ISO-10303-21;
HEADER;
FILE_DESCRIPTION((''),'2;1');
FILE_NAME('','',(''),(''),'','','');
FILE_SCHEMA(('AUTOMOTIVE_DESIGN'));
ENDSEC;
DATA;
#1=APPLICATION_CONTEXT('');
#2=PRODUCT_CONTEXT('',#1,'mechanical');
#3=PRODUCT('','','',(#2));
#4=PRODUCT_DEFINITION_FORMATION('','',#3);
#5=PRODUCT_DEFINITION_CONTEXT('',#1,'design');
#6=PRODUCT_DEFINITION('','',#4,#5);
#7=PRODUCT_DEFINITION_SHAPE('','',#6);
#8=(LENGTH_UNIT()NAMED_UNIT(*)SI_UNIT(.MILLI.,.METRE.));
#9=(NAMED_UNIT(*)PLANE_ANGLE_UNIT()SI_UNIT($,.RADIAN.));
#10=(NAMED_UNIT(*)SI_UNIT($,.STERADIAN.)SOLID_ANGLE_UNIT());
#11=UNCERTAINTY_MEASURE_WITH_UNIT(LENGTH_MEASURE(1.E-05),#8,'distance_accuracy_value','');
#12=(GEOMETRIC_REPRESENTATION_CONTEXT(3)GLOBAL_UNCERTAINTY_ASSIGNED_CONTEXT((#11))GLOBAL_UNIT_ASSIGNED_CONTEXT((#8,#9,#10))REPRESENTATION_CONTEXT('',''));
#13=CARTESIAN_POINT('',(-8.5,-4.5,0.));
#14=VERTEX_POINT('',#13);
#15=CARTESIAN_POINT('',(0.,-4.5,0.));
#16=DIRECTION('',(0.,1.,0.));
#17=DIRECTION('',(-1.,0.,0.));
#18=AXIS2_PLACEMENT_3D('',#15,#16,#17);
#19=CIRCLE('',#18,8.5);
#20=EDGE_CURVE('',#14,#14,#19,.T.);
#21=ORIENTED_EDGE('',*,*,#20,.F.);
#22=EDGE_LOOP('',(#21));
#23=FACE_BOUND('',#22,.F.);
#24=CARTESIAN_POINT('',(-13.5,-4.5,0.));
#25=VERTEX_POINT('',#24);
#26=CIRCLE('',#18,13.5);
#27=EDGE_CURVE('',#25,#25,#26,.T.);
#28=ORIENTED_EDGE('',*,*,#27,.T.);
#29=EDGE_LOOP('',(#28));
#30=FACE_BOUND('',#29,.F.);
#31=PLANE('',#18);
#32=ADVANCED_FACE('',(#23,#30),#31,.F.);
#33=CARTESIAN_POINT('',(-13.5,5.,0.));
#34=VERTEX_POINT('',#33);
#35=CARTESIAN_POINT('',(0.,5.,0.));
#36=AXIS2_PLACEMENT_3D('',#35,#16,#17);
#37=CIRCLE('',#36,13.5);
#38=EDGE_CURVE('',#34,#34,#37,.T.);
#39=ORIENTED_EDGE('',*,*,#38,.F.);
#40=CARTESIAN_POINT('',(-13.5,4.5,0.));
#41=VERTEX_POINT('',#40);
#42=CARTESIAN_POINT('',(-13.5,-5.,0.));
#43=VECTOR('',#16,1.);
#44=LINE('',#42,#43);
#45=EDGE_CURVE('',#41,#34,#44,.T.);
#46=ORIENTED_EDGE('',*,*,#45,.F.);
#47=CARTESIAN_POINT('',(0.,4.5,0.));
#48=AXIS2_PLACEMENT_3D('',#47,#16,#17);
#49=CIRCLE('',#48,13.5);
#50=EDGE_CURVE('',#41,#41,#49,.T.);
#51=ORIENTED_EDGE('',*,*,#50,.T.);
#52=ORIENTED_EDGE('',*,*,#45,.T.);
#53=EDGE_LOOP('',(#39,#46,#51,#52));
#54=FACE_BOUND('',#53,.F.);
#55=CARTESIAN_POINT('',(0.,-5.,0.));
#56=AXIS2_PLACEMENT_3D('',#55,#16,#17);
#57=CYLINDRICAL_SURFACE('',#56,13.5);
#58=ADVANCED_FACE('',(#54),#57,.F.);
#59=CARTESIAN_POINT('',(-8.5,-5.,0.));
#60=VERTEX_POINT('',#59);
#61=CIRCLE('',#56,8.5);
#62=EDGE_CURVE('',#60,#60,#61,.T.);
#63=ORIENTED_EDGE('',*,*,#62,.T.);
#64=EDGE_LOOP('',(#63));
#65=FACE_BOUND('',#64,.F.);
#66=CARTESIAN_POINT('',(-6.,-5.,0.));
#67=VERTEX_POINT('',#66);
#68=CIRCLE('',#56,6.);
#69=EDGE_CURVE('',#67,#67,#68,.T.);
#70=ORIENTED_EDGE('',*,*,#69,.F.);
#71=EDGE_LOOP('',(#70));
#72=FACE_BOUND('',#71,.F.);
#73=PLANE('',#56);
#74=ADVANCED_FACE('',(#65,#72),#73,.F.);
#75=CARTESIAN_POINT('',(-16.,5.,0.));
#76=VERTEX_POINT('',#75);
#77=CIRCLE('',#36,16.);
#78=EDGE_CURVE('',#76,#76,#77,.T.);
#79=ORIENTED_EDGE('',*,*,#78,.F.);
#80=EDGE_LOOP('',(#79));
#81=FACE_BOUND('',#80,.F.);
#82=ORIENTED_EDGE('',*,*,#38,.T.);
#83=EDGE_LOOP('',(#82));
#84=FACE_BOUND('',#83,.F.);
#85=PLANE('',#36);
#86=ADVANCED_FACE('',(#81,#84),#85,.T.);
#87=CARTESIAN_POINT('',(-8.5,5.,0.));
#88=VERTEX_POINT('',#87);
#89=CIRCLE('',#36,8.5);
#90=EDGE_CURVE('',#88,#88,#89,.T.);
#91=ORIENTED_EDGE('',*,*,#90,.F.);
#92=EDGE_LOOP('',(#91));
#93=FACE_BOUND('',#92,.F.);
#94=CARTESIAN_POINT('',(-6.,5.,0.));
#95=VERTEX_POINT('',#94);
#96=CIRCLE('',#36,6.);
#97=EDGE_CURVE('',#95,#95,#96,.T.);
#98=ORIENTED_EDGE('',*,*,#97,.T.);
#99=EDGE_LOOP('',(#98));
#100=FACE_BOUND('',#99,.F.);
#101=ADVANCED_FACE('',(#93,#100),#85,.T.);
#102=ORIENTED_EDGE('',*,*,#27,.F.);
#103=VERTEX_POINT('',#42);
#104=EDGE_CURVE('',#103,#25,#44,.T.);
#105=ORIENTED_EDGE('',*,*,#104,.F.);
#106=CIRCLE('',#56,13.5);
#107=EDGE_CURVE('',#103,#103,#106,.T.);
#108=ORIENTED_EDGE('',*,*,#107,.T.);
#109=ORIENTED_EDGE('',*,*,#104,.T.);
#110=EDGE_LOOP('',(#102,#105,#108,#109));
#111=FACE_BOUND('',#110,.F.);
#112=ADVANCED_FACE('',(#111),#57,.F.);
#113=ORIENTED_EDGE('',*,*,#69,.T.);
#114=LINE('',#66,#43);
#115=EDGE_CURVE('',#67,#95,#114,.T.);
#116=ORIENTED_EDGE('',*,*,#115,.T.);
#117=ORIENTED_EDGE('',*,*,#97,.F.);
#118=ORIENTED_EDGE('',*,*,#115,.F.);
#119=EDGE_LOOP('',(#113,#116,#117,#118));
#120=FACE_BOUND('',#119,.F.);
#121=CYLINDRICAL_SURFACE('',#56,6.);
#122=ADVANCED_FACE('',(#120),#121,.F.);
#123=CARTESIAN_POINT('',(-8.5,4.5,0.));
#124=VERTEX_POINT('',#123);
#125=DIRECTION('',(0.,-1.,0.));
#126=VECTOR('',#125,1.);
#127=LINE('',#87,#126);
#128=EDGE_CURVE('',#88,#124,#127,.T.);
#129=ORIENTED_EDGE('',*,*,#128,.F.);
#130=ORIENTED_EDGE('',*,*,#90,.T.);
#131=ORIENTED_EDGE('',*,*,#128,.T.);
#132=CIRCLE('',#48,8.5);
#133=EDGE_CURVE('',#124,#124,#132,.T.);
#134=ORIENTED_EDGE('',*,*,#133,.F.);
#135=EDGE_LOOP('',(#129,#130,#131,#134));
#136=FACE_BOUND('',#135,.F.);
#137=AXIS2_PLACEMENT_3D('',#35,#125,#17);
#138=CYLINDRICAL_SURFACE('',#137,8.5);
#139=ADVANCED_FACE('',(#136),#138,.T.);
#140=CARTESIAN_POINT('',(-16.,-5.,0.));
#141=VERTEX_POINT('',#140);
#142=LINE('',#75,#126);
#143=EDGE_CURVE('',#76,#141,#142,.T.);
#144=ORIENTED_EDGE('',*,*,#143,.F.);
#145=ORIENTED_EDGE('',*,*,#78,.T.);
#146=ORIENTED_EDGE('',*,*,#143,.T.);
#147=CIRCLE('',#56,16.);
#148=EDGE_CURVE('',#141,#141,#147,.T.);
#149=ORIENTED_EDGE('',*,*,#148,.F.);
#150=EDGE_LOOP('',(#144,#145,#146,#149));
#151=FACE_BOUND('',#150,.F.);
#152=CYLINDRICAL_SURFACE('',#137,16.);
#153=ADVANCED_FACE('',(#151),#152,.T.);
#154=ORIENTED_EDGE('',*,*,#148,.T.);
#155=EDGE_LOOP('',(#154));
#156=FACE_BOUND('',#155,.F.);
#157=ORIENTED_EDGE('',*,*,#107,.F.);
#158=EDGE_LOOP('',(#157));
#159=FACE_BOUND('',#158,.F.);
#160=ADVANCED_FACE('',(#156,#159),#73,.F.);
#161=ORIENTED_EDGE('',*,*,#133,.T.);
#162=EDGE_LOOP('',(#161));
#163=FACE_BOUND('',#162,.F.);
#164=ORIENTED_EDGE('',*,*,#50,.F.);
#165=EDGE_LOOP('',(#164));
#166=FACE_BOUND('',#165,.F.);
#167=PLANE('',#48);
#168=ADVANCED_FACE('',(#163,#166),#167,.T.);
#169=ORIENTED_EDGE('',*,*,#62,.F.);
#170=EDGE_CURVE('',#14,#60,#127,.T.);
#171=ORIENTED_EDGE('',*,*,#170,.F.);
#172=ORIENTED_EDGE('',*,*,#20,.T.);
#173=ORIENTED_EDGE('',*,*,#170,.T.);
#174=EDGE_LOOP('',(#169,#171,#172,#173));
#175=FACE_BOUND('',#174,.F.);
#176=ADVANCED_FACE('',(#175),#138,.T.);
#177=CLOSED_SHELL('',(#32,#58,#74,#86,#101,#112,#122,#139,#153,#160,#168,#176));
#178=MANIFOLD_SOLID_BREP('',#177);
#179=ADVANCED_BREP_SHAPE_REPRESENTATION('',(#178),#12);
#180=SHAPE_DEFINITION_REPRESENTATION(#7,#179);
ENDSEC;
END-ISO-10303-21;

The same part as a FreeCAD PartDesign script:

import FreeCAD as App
import Part
import Sketcher

V = App.Vector
Q = App.Units.Quantity


def add_polygon(sketch, points):
    """Adds a closed chain of lines whose ends are joined by coincident constraints."""
    first, n = sketch.GeometryCount, len(points)
    for a, b in zip(points, points[1:] + points[:1]):
        sketch.addGeometry(Part.LineSegment(App.Vector(*a, 0), App.Vector(*b, 0)), False)
    for i in range(n):
        sketch.addConstraint(Sketcher.Constraint("Coincident", first + i, 2, first + (i + 1) % n, 1))

doc = App.newDocument("Part")
body = doc.addObject("PartDesign::Body", "Body")

sketch1 = body.newObject("Sketcher::SketchObject", "Sketch")
sketch1.AttachmentSupport = (doc.getObject("XY_Plane"), [""])
sketch1.MapMode = "FlatFace"
add_polygon(sketch1, [(-8.5, -4.5), (-8.5, -5), (-6, -5), (-6, 5), (-8.5, 5), (-8.5, 4.5), (-13.5, 4.5), (-13.5, 5), (-16, 5), (-16, -5), (-13.5, -5), (-13.5, -4.5)])
sketch1.addConstraint([
    Sketcher.Constraint("Vertical", 0),
    Sketcher.Constraint("Horizontal", 1),
    Sketcher.Constraint("Vertical", 2),
    Sketcher.Constraint("Horizontal", 3),
    Sketcher.Constraint("Vertical", 4),
    Sketcher.Constraint("Horizontal", 5),
    Sketcher.Constraint("Vertical", 6),
    Sketcher.Constraint("Horizontal", 7),
    Sketcher.Constraint("Vertical", 8),
    Sketcher.Constraint("Horizontal", 9),
    Sketcher.Constraint("Vertical", 10),
    Sketcher.Constraint("Horizontal", 11),
    Sketcher.Constraint("Symmetric", 0, 2, 3, 2, -1),
    Sketcher.Constraint("Symmetric", 6, 2, 9, 2, -1),
    Sketcher.Constraint("Horizontal", 3, 2, 6, 2),
    Sketcher.Constraint("Equal", 3, 7),
    Sketcher.Constraint("Equal", 0, 4),
    Sketcher.Constraint("DistanceY", 2, 1, 2, 2, Q("10 mm")),
    Sketcher.Constraint("DistanceX", 1, 1, 1, 2, Q("2.5 mm")),
    Sketcher.Constraint("DistanceX", 7, 2, 2, 2, Q("10 mm")),
    Sketcher.Constraint("DistanceY", 10, 2, 5, 2, Q("9 mm")),
    Sketcher.Constraint("DistanceX", 1, 2, -1, 1, Q("6 mm")),
])
revolution = body.newObject("PartDesign::Revolution", "Revolution")
revolution.Profile = sketch1
revolution.ReferenceAxis = (sketch1, ["V_Axis"])
revolution.Angle = 360

doc.recompute()
